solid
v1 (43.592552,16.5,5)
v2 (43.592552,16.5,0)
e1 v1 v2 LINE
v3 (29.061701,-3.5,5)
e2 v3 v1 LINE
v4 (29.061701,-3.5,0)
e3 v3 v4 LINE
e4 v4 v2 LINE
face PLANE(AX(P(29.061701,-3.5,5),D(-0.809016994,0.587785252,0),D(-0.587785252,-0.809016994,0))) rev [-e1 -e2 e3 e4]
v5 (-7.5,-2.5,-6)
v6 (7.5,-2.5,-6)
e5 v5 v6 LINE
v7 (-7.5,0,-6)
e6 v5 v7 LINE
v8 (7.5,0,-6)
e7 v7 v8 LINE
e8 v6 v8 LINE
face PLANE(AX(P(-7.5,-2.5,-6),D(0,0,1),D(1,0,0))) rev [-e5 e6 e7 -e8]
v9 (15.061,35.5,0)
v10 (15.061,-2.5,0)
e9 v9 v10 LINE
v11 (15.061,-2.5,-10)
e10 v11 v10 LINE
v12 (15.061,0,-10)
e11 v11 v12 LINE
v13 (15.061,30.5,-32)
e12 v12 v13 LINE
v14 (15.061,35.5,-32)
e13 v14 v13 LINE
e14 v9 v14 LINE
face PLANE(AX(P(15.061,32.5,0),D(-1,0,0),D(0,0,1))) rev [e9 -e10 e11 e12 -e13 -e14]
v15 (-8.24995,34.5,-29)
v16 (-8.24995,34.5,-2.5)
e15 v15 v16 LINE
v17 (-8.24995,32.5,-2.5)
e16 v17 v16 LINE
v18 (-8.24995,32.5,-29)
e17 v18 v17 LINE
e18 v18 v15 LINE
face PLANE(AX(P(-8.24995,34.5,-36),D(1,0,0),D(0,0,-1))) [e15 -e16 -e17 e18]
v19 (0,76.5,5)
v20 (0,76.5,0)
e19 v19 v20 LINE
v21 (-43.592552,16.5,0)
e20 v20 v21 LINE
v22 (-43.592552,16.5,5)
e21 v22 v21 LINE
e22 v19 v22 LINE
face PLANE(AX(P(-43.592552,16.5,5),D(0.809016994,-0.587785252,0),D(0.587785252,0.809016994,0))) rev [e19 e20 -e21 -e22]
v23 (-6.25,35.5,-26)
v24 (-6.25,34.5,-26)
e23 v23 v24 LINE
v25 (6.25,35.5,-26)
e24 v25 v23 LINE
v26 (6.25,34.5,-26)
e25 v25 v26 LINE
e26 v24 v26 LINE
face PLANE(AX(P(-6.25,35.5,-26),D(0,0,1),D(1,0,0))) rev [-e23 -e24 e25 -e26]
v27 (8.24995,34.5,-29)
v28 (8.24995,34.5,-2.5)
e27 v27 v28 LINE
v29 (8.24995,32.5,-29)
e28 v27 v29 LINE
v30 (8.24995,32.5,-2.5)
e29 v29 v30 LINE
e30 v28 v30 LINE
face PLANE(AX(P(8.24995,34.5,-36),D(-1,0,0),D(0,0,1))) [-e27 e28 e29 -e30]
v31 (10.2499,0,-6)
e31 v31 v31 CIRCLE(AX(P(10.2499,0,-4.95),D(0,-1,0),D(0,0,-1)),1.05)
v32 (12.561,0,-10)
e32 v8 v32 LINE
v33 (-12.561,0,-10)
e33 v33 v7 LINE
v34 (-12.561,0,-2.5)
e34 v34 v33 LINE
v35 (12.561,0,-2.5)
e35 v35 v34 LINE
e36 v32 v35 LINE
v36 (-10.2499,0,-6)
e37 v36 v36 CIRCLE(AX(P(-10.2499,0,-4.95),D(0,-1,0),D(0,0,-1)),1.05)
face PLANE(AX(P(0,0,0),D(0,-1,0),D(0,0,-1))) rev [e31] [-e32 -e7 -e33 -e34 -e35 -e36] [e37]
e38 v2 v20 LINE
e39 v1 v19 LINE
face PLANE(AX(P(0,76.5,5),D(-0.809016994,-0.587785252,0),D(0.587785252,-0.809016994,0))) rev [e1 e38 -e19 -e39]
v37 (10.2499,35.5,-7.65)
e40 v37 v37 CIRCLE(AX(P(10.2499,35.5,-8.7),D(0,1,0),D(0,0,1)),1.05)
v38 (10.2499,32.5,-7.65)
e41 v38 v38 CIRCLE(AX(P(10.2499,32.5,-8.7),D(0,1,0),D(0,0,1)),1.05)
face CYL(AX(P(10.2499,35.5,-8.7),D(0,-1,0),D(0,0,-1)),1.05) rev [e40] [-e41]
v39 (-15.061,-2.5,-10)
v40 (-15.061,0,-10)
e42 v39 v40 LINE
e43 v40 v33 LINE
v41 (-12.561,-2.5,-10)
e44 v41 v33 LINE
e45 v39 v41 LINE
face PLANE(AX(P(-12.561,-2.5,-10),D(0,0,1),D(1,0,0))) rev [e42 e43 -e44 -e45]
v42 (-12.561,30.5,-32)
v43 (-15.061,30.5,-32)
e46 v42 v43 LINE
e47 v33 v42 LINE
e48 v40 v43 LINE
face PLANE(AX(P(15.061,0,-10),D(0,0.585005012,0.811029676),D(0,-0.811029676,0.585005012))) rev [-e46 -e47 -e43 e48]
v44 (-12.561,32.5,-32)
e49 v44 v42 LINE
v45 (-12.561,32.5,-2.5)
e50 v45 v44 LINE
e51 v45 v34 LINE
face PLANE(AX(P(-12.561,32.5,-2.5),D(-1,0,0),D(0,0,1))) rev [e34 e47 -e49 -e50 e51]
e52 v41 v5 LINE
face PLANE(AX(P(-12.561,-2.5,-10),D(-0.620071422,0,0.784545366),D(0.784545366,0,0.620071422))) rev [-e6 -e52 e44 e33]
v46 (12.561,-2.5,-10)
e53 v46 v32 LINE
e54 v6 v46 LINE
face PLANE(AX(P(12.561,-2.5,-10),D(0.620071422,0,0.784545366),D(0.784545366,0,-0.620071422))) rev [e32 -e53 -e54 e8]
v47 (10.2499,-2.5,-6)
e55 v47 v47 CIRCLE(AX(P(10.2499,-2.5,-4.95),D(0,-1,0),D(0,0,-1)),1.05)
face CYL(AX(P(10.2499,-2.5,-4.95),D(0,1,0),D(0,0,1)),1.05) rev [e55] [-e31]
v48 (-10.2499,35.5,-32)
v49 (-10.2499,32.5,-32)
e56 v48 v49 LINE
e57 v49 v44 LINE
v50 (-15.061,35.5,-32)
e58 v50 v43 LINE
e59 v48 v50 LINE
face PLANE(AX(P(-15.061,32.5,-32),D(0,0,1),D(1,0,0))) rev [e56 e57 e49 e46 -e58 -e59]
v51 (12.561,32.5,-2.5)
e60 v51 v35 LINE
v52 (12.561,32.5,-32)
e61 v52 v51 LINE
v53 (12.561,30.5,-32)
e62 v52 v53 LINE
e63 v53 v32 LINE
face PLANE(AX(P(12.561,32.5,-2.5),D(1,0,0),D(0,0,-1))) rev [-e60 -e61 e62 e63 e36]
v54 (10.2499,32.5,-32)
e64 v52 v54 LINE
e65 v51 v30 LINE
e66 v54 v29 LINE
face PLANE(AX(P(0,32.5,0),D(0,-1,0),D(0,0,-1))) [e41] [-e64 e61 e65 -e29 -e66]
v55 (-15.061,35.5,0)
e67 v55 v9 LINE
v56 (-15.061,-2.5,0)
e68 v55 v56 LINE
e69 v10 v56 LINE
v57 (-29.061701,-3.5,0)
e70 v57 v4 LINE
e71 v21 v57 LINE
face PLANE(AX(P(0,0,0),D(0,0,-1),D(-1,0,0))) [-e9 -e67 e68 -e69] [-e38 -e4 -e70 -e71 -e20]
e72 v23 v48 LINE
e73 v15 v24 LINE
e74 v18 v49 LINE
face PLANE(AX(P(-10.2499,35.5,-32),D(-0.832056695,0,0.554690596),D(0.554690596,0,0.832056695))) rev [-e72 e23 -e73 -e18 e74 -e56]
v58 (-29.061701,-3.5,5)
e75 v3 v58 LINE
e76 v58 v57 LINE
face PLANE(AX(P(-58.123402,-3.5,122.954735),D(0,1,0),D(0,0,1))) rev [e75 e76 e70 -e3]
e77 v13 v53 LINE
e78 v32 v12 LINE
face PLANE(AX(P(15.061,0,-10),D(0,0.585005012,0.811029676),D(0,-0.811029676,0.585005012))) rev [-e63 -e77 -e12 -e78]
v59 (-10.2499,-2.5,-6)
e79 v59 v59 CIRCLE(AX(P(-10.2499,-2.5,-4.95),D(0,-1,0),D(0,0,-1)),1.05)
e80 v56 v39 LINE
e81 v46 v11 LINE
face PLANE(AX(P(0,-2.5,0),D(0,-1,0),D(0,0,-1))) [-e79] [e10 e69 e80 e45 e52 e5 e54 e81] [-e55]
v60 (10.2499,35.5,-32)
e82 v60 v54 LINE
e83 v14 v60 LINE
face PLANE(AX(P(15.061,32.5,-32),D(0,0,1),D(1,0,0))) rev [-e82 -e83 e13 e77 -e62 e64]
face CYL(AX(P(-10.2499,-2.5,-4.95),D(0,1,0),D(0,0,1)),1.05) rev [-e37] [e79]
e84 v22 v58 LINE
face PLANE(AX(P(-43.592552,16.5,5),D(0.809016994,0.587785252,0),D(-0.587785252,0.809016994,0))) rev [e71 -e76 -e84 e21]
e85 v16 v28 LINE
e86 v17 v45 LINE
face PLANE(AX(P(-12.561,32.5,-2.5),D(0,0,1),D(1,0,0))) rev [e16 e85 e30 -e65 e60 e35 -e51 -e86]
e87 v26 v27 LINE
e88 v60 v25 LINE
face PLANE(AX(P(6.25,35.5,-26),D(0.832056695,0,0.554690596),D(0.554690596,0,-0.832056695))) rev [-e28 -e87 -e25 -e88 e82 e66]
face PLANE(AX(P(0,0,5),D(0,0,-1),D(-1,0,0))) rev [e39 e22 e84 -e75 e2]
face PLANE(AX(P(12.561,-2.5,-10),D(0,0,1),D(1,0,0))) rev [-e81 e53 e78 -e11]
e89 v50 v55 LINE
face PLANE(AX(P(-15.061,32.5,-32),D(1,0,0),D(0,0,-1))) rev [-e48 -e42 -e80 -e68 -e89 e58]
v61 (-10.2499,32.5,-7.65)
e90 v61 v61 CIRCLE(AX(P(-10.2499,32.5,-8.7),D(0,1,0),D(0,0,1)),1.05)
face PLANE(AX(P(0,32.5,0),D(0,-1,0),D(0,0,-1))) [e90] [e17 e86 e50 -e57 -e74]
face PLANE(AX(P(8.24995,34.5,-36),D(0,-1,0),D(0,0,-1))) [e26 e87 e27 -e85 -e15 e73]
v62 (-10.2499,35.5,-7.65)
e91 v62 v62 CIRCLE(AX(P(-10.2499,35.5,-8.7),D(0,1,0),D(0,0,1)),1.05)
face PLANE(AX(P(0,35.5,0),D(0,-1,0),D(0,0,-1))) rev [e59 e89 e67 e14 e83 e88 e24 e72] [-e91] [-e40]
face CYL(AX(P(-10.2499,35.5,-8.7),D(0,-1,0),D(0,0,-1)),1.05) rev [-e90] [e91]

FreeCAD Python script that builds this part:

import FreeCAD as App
import Part
import Sketcher
Q = App.Units.Quantity

doc = App.newDocument("Part")
body = doc.addObject("PartDesign::Body", "Body")

# Sketch on XZ plane
sketch1 = body.newObject("Sketcher::SketchObject", "Sketch")
sketch1.AttachmentSupport = (doc.getObject("XZ_Plane"), [""])
sketch1.MapMode = "FlatFace"
sketch1.addGeometry(Part.LineSegment(App.Vector(15.1, 0, 0), App.Vector(15.1, -32, 0)), False)
sketch1.addGeometry(Part.LineSegment(App.Vector(15.1, -32, 0), App.Vector(12.6, -32, 0)), False)
sketch1.addGeometry(Part.LineSegment(App.Vector(12.6, -32, 0), App.Vector(12.6, -2.5, 0)), False)
sketch1.addGeometry(Part.LineSegment(App.Vector(12.6, -2.5, 0), App.Vector(-12.6, -2.5, 0)), False)
sketch1.addGeometry(Part.LineSegment(App.Vector(-12.6, -2.5, 0), App.Vector(-12.6, -32, 0)), False)
sketch1.addGeometry(Part.LineSegment(App.Vector(-12.6, -32, 0), App.Vector(-15.1, -32, 0)), False)
sketch1.addGeometry(Part.LineSegment(App.Vector(-15.1, -32, 0), App.Vector(-15.1, 0, 0)), False)
sketch1.addGeometry(Part.LineSegment(App.Vector(-15.1, 0, 0), App.Vector(15.1, 0, 0)), False)
sketch1.addConstraint(Sketcher.Constraint("Coincident", 0, 2, 1, 1))
sketch1.addConstraint(Sketcher.Constraint("Coincident", 1, 2, 2, 1))
sketch1.addConstraint(Sketcher.Constraint("Coincident", 2, 2, 3, 1))
sketch1.addConstraint(Sketcher.Constraint("Coincident", 3, 2, 4, 1))
sketch1.addConstraint(Sketcher.Constraint("Coincident", 4, 2, 5, 1))
sketch1.addConstraint(Sketcher.Constraint("Coincident", 5, 2, 6, 1))
sketch1.addConstraint(Sketcher.Constraint("Coincident", 6, 2, 7, 1))
sketch1.addConstraint(Sketcher.Constraint("Coincident", 7, 2, 0, 1))
sketch1.addConstraint(Sketcher.Constraint("Vertical", 0))
sketch1.addConstraint(Sketcher.Constraint("Horizontal", 1))
sketch1.addConstraint(Sketcher.Constraint("Vertical", 2))
sketch1.addConstraint(Sketcher.Constraint("Horizontal", 3))
sketch1.addConstraint(Sketcher.Constraint("Vertical", 4))
sketch1.addConstraint(Sketcher.Constraint("Horizontal", 5))
sketch1.addConstraint(Sketcher.Constraint("Vertical", 6))
sketch1.addConstraint(Sketcher.Constraint("Horizontal", 7))
sketch1.addConstraint(Sketcher.Constraint("Symmetric", 6, 2, 7, 2, -1, 1))
sketch1.addConstraint(Sketcher.Constraint("Symmetric", 1, 2, 4, 2, -2))
sketch1.addConstraint(Sketcher.Constraint("DistanceY", 0, 2, 0, 1, Q("32 mm")))
sketch1.addConstraint(Sketcher.Constraint("DistanceX", 1, 2, 1, 1, Q("2.5 mm")))
sketch1.addConstraint(Sketcher.Constraint("DistanceY", 2, 1, 2, 2, Q("29.5 mm")))
sketch1.addConstraint(Sketcher.Constraint("DistanceX", 3, 2, 3, 1, Q("25.122 mm")))
pad1 = body.newObject("PartDesign::Pad", "Pad")
pad1.Profile = sketch1
pad1.Length = 32.5
pad1.Reversed = True

# Sketch on XZ plane
sketch2 = body.newObject("Sketcher::SketchObject", "Sketch001")
sketch2.AttachmentSupport = (doc.getObject("XZ_Plane"), [""])
sketch2.MapMode = "FlatFace"
sketch2.addGeometry(Part.LineSegment(App.Vector(-7.5, -6, 0), App.Vector(7.5, -6, 0)), False)
sketch2.addGeometry(Part.LineSegment(App.Vector(7.5, -6, 0), App.Vector(12.6, -10, 0)), False)
sketch2.addGeometry(Part.LineSegment(App.Vector(12.6, -10, 0), App.Vector(15.1, -10, 0)), False)
sketch2.addGeometry(Part.LineSegment(App.Vector(15.1, -10, 0), App.Vector(15.1, 0, 0)), False)
sketch2.addGeometry(Part.LineSegment(App.Vector(15.1, 0, 0), App.Vector(-15.1, 0, 0)), False)
sketch2.addGeometry(Part.LineSegment(App.Vector(-15.1, 0, 0), App.Vector(-15.1, -10, 0)), False)
sketch2.addGeometry(Part.LineSegment(App.Vector(-15.1, -10, 0), App.Vector(-12.6, -10, 0)), False)
sketch2.addGeometry(Part.LineSegment(App.Vector(-12.6, -10, 0), App.Vector(-7.5, -6, 0)), False)
sketch2.addGeometry(Part.Circle(App.Vector(-10.2, -5, 0), App.Vector(0, 0, 1), 1.1), False)
sketch2.addGeometry(Part.Circle(App.Vector(10.2, -5, 0), App.Vector(0, 0, 1), 1.1), False)
sketch2.addConstraint(Sketcher.Constraint("Coincident", 0, 2, 1, 1))
sketch2.addConstraint(Sketcher.Constraint("Coincident", 1, 2, 2, 1))
sketch2.addConstraint(Sketcher.Constraint("Coincident", 2, 2, 3, 1))
sketch2.addConstraint(Sketcher.Constraint("Coincident", 3, 2, 4, 1))
sketch2.addConstraint(Sketcher.Constraint("Coincident", 4, 2, 5, 1))
sketch2.addConstraint(Sketcher.Constraint("Coincident", 5, 2, 6, 1))
sketch2.addConstraint(Sketcher.Constraint("Coincident", 6, 2, 7, 1))
sketch2.addConstraint(Sketcher.Constraint("Coincident", 7, 2, 0, 1))
sketch2.addConstraint(Sketcher.Constraint("Horizontal", 0))
sketch2.addConstraint(Sketcher.Constraint("Horizontal", 2))
sketch2.addConstraint(Sketcher.Constraint("Vertical", 3))
sketch2.addConstraint(Sketcher.Constraint("Horizontal", 4))
sketch2.addConstraint(Sketcher.Constraint("Vertical", 5))
sketch2.addConstraint(Sketcher.Constraint("Horizontal", 6))
sketch2.addConstraint(Sketcher.Constraint("Equal", 8, 9))
sketch2.addConstraint(Sketcher.Constraint("Symmetric", 3, 2, 4, 2, -1, 1))
sketch2.addConstraint(Sketcher.Constraint("Symmetric", 8, 3, 9, 3, -2))
sketch2.addConstraint(Sketcher.Constraint("Symmetric", 1, 2, 6, 2, -2))
sketch2.addConstraint(Sketcher.Constraint("Equal", 1, 7))
sketch2.addConstraint(Sketcher.Constraint("Diameter", 8, Q("2.1 mm")))
sketch2.addConstraint(Sketcher.Constraint("DistanceX", 0, 1, 0, 2, Q("15 mm")))
sketch2.addConstraint(Sketcher.Constraint("DistanceY", 3, 1, 3, 2, Q("10 mm")))
sketch2.addConstraint(Sketcher.Constraint("DistanceX", 2, 1, 2, 2, Q("2.5 mm")))
sketch2.addConstraint(Sketcher.Constraint("DistanceY", 0, 2, -1, 1, Q("6 mm")))
sketch2.addConstraint(Sketcher.Constraint("DistanceX", 4, 2, 4, 1, Q("30.122 mm")))
sketch2.addConstraint(Sketcher.Constraint("DistanceY", 8, 3, -1, 1, Q("4.95 mm")))
sketch2.addConstraint(Sketcher.Constraint("DistanceX", 8, 3, -1, 1, Q("10.2499 mm")))
pad2 = body.newObject("PartDesign::Pad", "Pad001")
pad2.Profile = sketch2
pad2.Length = 2.5

# Sketch on XZ plane
sketch3 = body.newObject("Sketcher::SketchObject", "Sketch002")
sketch3.AttachmentSupport = (doc.getObject("XZ_Plane"), [""])
sketch3.MapMode = "FlatFace"
sketch3.AttachmentOffset = App.Placement(App.Vector(0, 0, -32.5), App.Rotation())
sketch3.addGeometry(Part.LineSegment(App.Vector(-10.2, -32, 0), App.Vector(-15.1, -32, 0)), False)
sketch3.addGeometry(Part.LineSegment(App.Vector(-15.1, -32, 0), App.Vector(-15.1, 0, 0)), False)
sketch3.addGeometry(Part.LineSegment(App.Vector(-15.1, 0, 0), App.Vector(15.1, 0, 0)), False)
sketch3.addGeometry(Part.LineSegment(App.Vector(15.1, 0, 0), App.Vector(15.1, -32, 0)), False)
sketch3.addGeometry(Part.LineSegment(App.Vector(15.1, -32, 0), App.Vector(10.2, -32, 0)), False)
sketch3.addGeometry(Part.LineSegment(App.Vector(10.2, -32, 0), App.Vector(6.2, -26, 0)), False)
sketch3.addGeometry(Part.LineSegment(App.Vector(6.2, -26, 0), App.Vector(-6.2, -26, 0)), False)
sketch3.addGeometry(Part.LineSegment(App.Vector(-6.2, -26, 0), App.Vector(-10.2, -32, 0)), False)
sketch3.addGeometry(Part.Circle(App.Vector(10.2, -8.7, 0), App.Vector(0, 0, 1), 1.1), False)
sketch3.addGeometry(Part.Circle(App.Vector(-10.2, -8.7, 0), App.Vector(0, 0, 1), 1.1), False)
sketch3.addConstraint(Sketcher.Constraint("Coincident", 0, 2, 1, 1))
sketch3.addConstraint(Sketcher.Constraint("Coincident", 1, 2, 2, 1))
sketch3.addConstraint(Sketcher.Constraint("Coincident", 2, 2, 3, 1))
sketch3.addConstraint(Sketcher.Constraint("Coincident", 3, 2, 4, 1))
sketch3.addConstraint(Sketcher.Constraint("Coincident", 4, 2, 5, 1))
sketch3.addConstraint(Sketcher.Constraint("Coincident", 5, 2, 6, 1))
sketch3.addConstraint(Sketcher.Constraint("Coincident", 6, 2, 7, 1))
sketch3.addConstraint(Sketcher.Constraint("Coincident", 7, 2, 0, 1))
sketch3.addConstraint(Sketcher.Constraint("Horizontal", 0))
sketch3.addConstraint(Sketcher.Constraint("Vertical", 1))
sketch3.addConstraint(Sketcher.Constraint("Horizontal", 2))
sketch3.addConstraint(Sketcher.Constraint("Vertical", 3))
sketch3.addConstraint(Sketcher.Constraint("Horizontal", 4))
sketch3.addConstraint(Sketcher.Constraint("Horizontal", 6))
sketch3.addConstraint(Sketcher.Constraint("Equal", 8, 9))
sketch3.addConstraint(Sketcher.Constraint("Symmetric", 1, 2, 2, 2, -1, 1))
sketch3.addConstraint(Sketcher.Constraint("Symmetric", 8, 3, 9, 3, -2))
sketch3.addConstraint(Sketcher.Constraint("Symmetric", 4, 2, 7, 2, -2))
sketch3.addConstraint(Sketcher.Constraint("Vertical", 8, 3, 4, 2))
sketch3.addConstraint(Sketcher.Constraint("Equal", 5, 7))
sketch3.addConstraint(Sketcher.Constraint("Diameter", 8, Q("2.1 mm")))
sketch3.addConstraint(Sketcher.Constraint("DistanceY", 1, 1, 1, 2, Q("32 mm")))
sketch3.addConstraint(Sketcher.Constraint("DistanceX", 6, 2, 6, 1, Q("12.5 mm")))
sketch3.addConstraint(Sketcher.Constraint("DistanceY", 5, 2, -1, 1, Q("26 mm")))
sketch3.addConstraint(Sketcher.Constraint("DistanceY", 8, 3, -1, 1, Q("8.7 mm")))
sketch3.addConstraint(Sketcher.Constraint("DistanceX", 2, 1, 2, 2, Q("30.122 mm")))
sketch3.addConstraint(Sketcher.Constraint("DistanceX", 0, 2, 0, 1, Q("4.8111 mm")))
pad3 = body.newObject("PartDesign::Pad", "Pad002")
pad3.Profile = sketch3
pad3.Length = 3
pad3.Reversed = True

# Sketch on YZ plane
sketch4 = body.newObject("Sketcher::SketchObject", "Sketch003")
sketch4.AttachmentSupport = (doc.getObject("YZ_Plane"), [""])
sketch4.MapMode = "FlatFace"
sketch4.AttachmentOffset = App.Placement(App.Vector(0, 0, -15.061), App.Rotation())
sketch4.addGeometry(Part.LineSegment(App.Vector(0, -10, 0), App.Vector(30, -32, 0)), False)
sketch4.addGeometry(Part.LineSegment(App.Vector(30, -32, 0), App.Vector(0, -32, 0)), False)
sketch4.addGeometry(Part.LineSegment(App.Vector(0, -32, 0), App.Vector(0, -10, 0)), False)
sketch4.addConstraint(Sketcher.Constraint("Coincident", 0, 2, 1, 1))
sketch4.addConstraint(Sketcher.Constraint("Coincident", 1, 2, 2, 1))
sketch4.addConstraint(Sketcher.Constraint("Coincident", 2, 2, 0, 1))
sketch4.addConstraint(Sketcher.Constraint("Horizontal", 1))
sketch4.addConstraint(Sketcher.Constraint("Vertical", 2))
sketch4.addConstraint(Sketcher.Constraint("PointOnObject", 1, 2, -2))
sketch4.addConstraint(Sketcher.Constraint("DistanceY", 2, 1, 2, 2, Q("22 mm")))
sketch4.addConstraint(Sketcher.Constraint("DistanceX", 1, 2, 1, 1, Q("30.5 mm")))
sketch4.addConstraint(Sketcher.Constraint("DistanceY", 0, 2, -1, 1, Q("32 mm")))
pocket1 = body.newObject("PartDesign::Pocket", "Pocket")
pocket1.Profile = sketch4
pocket1.Type = "ThroughAll"
pocket1.Reversed = True

# Sketch on XY plane
sketch5 = body.newObject("Sketcher::SketchObject", "Sketch004")
sketch5.AttachmentSupport = (doc.getObject("XY_Plane"), [""])
sketch5.MapMode = "FlatFace"
sketch5.addGeometry(Part.LineSegment(App.Vector(44, 16, 0), App.Vector(0, 76, 0)), False)
sketch5.addGeometry(Part.LineSegment(App.Vector(0, 76, 0), App.Vector(-44, 16, 0)), False)
sketch5.addGeometry(Part.LineSegment(App.Vector(-44, 16, 0), App.Vector(44, 16, 0)), False)
sketch5.addConstraint(Sketcher.Constraint("Coincident", 0, 2, 1, 1))
sketch5.addConstraint(Sketcher.Constraint("Coincident", 1, 2, 2, 1))
sketch5.addConstraint(Sketcher.Constraint("Coincident", 2, 2, 0, 1))
sketch5.addConstraint(Sketcher.Constraint("Horizontal", 2))
sketch5.addConstraint(Sketcher.Constraint("PointOnObject", 0, 2, -2))
sketch5.addConstraint(Sketcher.Constraint("Equal", 0, 1))
sketch5.addConstraint(Sketcher.Constraint("Angle", 0, Q("126 deg")))
sketch5.addConstraint(Sketcher.Constraint("DistanceY", 1, 2, 0, 2, Q("60 mm")))
sketch5.addConstraint(Sketcher.Constraint("DistanceY", -1, 1, 0, 2, Q("76.5 mm")))
pad4 = body.newObject("PartDesign::Pad", "Pad003")
pad4.Profile = sketch5
pad4.Length = 5

# Sketch on XY plane
sketch6 = body.newObject("Sketcher::SketchObject", "Sketch005")
sketch6.AttachmentSupport = (doc.getObject("XY_Plane"), [""])
sketch6.MapMode = "FlatFace"
sketch6.addGeometry(Part.LineSegment(App.Vector(-44, 16, 0), App.Vector(-58, -4, 0)), False)
sketch6.addGeometry(Part.LineSegment(App.Vector(-58, -4, 0), App.Vector(58, -4, 0)), False)
sketch6.addGeometry(Part.LineSegment(App.Vector(58, -4, 0), App.Vector(44, 16, 0)), False)
sketch6.addGeometry(Part.LineSegment(App.Vector(44, 16, 0), App.Vector(-44, 16, 0)), False)
sketch6.addConstraint(Sketcher.Constraint("Coincident", 0, 2, 1, 1))
sketch6.addConstraint(Sketcher.Constraint("Coincident", 1, 2, 2, 1))
sketch6.addConstraint(Sketcher.Constraint("Coincident", 2, 2, 3, 1))
sketch6.addConstraint(Sketcher.Constraint("Coincident", 3, 2, 0, 1))
sketch6.addConstraint(Sketcher.Constraint("Horizontal", 1))
sketch6.addConstraint(Sketcher.Constraint("Horizontal", 3))
sketch6.addConstraint(Sketcher.Constraint("Equal", 0, 2))
sketch6.addConstraint(Sketcher.Constraint("Angle", 0, Q("-126 deg")))
sketch6.addConstraint(Sketcher.Constraint("DistanceY", 1, 2, 2, 2, Q("20 mm")))
sketch6.addConstraint(Sketcher.Constraint("DistanceY", 0, 2, -1, 1, Q("3.5 mm")))
sketch6.addConstraint(Sketcher.Constraint("DistanceX", 1, 1, 1, 2, Q("116.246804 mm")))
sketch6.addConstraint(Sketcher.Constraint("DistanceX", -1, 1, 2, 2, Q("43.592552 mm")))
pad5 = body.newObject("PartDesign::Pad", "Pad004")
pad5.Profile = sketch6
pad5.Length = 5

# Sketch on XY plane
sketch7 = body.newObject("Sketcher::SketchObject", "Sketch006")
sketch7.AttachmentSupport = (doc.getObject("XY_Plane"), [""])
sketch7.MapMode = "FlatFace"
sketch7.addGeometry(Part.LineSegment(App.Vector(29, -4, 0), App.Vector(44, 16, 0)), False)
sketch7.addGeometry(Part.LineSegment(App.Vector(44, 16, 0), App.Vector(58, -4, 0)), False)
sketch7.addGeometry(Part.LineSegment(App.Vector(58, -4, 0), App.Vector(29, -4, 0)), False)
sketch7.addGeometry(Part.LineSegment(App.Vector(-58, -4, 0), App.Vector(-44, 16, 0)), False)
sketch7.addGeometry(Part.LineSegment(App.Vector(-44, 16, 0), App.Vector(-29, -4, 0)), False)
sketch7.addGeometry(Part.LineSegment(App.Vector(-29, -4, 0), App.Vector(-58, -4, 0)), False)
sketch7.addConstraint(Sketcher.Constraint("Coincident", 0, 2, 1, 1))
sketch7.addConstraint(Sketcher.Constraint("Coincident", 1, 2, 2, 1))
sketch7.addConstraint(Sketcher.Constraint("Coincident", 2, 2, 0, 1))
sketch7.addConstraint(Sketcher.Constraint("Coincident", 3, 2, 4, 1))
sketch7.addConstraint(Sketcher.Constraint("Coincident", 4, 2, 5, 1))
sketch7.addConstraint(Sketcher.Constraint("Coincident", 5, 2, 3, 1))
sketch7.addConstraint(Sketcher.Constraint("Horizontal", 2))
sketch7.addConstraint(Sketcher.Constraint("Horizontal", 5))
sketch7.addConstraint(Sketcher.Constraint("Symmetric", 0, 2, 3, 2, -2))
sketch7.addConstraint(Sketcher.Constraint("Symmetric", 2, 2, 4, 2, -2))
sketch7.addConstraint(Sketcher.Constraint("Parallel", 0, 3))
sketch7.addConstraint(Sketcher.Constraint("Parallel", 1, 4))
sketch7.addConstraint(Sketcher.Constraint("Angle", 0, Q("54 deg")))
sketch7.addConstraint(Sketcher.Constraint("DistanceY", 1, 2, 0, 2, Q("20 mm")))
sketch7.addConstraint(Sketcher.Constraint("DistanceY", -1, 1, 0, 2, Q("16.5 mm")))
sketch7.addConstraint(Sketcher.Constraint("DistanceX", -1, 1, 2, 2, Q("29.061701 mm")))
pocket2 = body.newObject("PartDesign::Pocket", "Pocket001")
pocket2.Profile = sketch7
pocket2.Type = "ThroughAll"
pocket2.Reversed = True

# Sketch on XY plane
sketch8 = body.newObject("Sketcher::SketchObject", "Sketch007")
sketch8.AttachmentSupport = (doc.getObject("XY_Plane"), [""])
sketch8.MapMode = "FlatFace"
sketch8.AttachmentOffset = App.Placement(App.Vector(0, 0, -26), App.Rotation())
sketch8.addGeometry(Part.LineSegment(App.Vector(8.2, 34.5, 0), App.Vector(8.2, 32.5, 0)), False)
sketch8.addGeometry(Part.LineSegment(App.Vector(8.2, 32.5, 0), App.Vector(-8.2, 32.5, 0)), False)
sketch8.addGeometry(Part.LineSegment(App.Vector(-8.2, 32.5, 0), App.Vector(-8.2, 34.5, 0)), False)
sketch8.addGeometry(Part.LineSegment(App.Vector(-8.2, 34.5, 0), App.Vector(8.2, 34.5, 0)), False)
sketch8.addConstraint(Sketcher.Constraint("Coincident", 0, 2, 1, 1))
sketch8.addConstraint(Sketcher.Constraint("Coincident", 1, 2, 2, 1))
sketch8.addConstraint(Sketcher.Constraint("Coincident", 2, 2, 3, 1))
sketch8.addConstraint(Sketcher.Constraint("Coincident", 3, 2, 0, 1))
sketch8.addConstraint(Sketcher.Constraint("Vertical", 0))
sketch8.addConstraint(Sketcher.Constraint("Horizontal", 1))
sketch8.addConstraint(Sketcher.Constraint("Vertical", 2))
sketch8.addConstraint(Sketcher.Constraint("Horizontal", 3))
sketch8.addConstraint(Sketcher.Constraint("DistanceY", 0, 2, 0, 1, Q("2 mm")))
sketch8.addConstraint(Sketcher.Constraint("DistanceY", -1, 1, 0, 2, Q("32.5 mm")))
sketch8.addConstraint(Sketcher.Constraint("DistanceX", 1, 2, 1, 1, Q("16.4999 mm")))
sketch8.addConstraint(Sketcher.Constraint("DistanceX", -1, 1, 0, 2, Q("8.24995 mm")))
pocket3 = body.newObject("PartDesign::Pocket", "Pocket002")
pocket3.Profile = sketch8
pocket3.Type = "TwoLengths"
pocket3.Length = 10
pocket3.Length2 = 23.5

doc.recompute()
